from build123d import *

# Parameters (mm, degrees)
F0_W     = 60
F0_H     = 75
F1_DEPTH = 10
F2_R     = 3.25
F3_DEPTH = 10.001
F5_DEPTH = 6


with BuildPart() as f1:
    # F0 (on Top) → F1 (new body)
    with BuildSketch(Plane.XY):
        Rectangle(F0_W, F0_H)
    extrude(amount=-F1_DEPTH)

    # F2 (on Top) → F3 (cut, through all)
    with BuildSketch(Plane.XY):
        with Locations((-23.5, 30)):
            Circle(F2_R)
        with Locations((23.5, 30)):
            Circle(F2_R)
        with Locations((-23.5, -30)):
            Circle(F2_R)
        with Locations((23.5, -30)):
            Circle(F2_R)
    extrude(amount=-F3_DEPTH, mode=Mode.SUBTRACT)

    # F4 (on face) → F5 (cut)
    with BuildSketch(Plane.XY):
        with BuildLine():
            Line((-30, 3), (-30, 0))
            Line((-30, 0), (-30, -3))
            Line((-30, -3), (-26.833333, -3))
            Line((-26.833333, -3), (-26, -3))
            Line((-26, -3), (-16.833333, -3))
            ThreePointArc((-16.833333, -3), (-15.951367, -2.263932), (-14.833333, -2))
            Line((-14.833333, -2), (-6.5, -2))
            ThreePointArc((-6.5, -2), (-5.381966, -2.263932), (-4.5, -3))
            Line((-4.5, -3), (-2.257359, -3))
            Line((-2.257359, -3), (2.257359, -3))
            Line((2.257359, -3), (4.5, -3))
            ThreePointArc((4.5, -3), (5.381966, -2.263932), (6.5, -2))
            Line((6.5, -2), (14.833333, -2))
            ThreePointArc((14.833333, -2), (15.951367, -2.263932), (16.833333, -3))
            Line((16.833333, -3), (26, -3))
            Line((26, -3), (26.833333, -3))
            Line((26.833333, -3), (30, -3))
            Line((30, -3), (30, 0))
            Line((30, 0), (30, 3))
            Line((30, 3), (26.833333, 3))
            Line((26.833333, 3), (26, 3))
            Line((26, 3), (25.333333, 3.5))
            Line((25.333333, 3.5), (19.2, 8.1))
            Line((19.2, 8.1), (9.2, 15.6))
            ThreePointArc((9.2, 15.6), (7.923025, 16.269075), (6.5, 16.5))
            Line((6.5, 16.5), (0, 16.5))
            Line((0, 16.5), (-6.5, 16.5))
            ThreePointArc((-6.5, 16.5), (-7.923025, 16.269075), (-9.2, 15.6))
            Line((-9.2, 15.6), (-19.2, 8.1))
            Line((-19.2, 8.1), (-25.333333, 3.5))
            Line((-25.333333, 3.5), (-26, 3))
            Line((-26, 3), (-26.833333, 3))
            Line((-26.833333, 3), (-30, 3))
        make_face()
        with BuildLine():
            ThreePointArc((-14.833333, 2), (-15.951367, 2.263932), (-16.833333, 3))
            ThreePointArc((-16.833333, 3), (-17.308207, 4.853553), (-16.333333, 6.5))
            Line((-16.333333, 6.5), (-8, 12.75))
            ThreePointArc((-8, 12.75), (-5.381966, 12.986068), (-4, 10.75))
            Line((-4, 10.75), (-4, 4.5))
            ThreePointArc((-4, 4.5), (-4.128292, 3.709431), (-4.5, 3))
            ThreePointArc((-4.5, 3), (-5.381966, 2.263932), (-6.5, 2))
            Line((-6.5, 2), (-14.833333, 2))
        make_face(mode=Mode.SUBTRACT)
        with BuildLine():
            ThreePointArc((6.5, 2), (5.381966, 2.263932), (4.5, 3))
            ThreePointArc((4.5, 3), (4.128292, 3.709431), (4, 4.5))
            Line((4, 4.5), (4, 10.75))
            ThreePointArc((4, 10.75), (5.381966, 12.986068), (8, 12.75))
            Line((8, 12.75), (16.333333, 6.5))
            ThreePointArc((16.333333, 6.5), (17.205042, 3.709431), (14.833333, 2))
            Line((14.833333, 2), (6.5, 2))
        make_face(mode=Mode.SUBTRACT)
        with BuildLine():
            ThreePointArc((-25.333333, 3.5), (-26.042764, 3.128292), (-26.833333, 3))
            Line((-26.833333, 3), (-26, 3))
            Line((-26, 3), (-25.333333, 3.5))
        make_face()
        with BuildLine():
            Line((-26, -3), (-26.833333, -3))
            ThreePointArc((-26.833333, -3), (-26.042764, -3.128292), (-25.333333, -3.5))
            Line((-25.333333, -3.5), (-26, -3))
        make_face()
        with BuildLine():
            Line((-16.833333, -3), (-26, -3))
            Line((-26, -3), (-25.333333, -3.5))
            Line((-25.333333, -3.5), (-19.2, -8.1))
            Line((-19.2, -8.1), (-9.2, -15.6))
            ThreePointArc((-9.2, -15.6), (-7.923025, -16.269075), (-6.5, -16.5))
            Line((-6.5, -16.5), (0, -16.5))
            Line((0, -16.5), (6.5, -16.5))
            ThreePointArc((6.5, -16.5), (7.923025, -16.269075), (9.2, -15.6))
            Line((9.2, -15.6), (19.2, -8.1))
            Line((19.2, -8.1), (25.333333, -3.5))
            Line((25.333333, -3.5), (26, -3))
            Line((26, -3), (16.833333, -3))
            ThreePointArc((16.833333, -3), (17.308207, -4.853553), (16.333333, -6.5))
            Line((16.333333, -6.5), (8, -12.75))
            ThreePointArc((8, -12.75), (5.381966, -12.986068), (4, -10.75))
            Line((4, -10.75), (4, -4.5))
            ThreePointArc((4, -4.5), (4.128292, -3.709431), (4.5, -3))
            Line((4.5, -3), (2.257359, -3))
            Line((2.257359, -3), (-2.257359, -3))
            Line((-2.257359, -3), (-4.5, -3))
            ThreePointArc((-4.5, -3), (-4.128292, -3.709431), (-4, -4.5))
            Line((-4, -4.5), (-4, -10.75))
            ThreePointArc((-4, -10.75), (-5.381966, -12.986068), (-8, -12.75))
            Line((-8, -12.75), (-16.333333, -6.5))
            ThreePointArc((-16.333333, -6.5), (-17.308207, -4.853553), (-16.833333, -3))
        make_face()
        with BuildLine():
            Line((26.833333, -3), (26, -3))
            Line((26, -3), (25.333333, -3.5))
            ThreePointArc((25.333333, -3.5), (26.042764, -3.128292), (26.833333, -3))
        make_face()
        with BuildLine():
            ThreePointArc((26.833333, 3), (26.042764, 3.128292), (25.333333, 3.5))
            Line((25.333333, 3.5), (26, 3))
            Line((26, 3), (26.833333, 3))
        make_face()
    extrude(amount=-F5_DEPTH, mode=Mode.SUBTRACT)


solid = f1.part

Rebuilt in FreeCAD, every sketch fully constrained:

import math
import FreeCAD as App
import Part
import Sketcher
from FreeCAD import Vector

doc = App.newDocument("Part")
body = doc.addObject("PartDesign::Body", "Body")

sketch1 = body.newObject("Sketcher::SketchObject", "Sketch")
sketch1.AttachmentSupport = (doc.getObject("XY_Plane"), [""])
sketch1.MapMode = "FlatFace"
sketch1.addGeometry(Part.LineSegment(Vector(-30, 38, 0), Vector(-30, -38, 0)), False)
sketch1.addGeometry(Part.LineSegment(Vector(-30, -38, 0), Vector(30, -38, 0)), False)
sketch1.addGeometry(Part.LineSegment(Vector(30, -38, 0), Vector(30, 38, 0)), False)
sketch1.addGeometry(Part.LineSegment(Vector(30, 38, 0), Vector(-30, 38, 0)), False)
sketch1.addConstraint(Sketcher.Constraint("Coincident", 0, 2, 1, 1))
sketch1.addConstraint(Sketcher.Constraint("Coincident", 1, 2, 2, 1))
sketch1.addConstraint(Sketcher.Constraint("Coincident", 2, 2, 3, 1))
sketch1.addConstraint(Sketcher.Constraint("Coincident", 3, 2, 0, 1))
sketch1.addConstraint(Sketcher.Constraint("Vertical", 0))
sketch1.addConstraint(Sketcher.Constraint("Horizontal", 1))
sketch1.addConstraint(Sketcher.Constraint("Vertical", 2))
sketch1.addConstraint(Sketcher.Constraint("Horizontal", 3))
sketch1.addConstraint(Sketcher.Constraint("Symmetric", 0, 2, 2, 2, -1, 1))
sketch1.addConstraint(Sketcher.Constraint("DistanceX", 1, 1, 1, 2, 60.0))
sketch1.addConstraint(Sketcher.Constraint("DistanceY", 0, 2, 0, 1, 75.0))
pad1 = body.newObject("PartDesign::Pad", "Pad")
pad1.Profile = sketch1
pad1.Length = 10
pad1.Reversed = True

sketch2 = body.newObject("Sketcher::SketchObject", "Sketch001")
sketch2.AttachmentSupport = (doc.getObject("XY_Plane"), [""])
sketch2.MapMode = "FlatFace"
sketch2.addGeometry(Part.Circle(Vector(-23.5, 30, 0), Vector(0, 0, 1), 3.2), False)
sketch2.addGeometry(Part.Circle(Vector(23.5, 30, 0), Vector(0, 0, 1), 3.2), False)
sketch2.addGeometry(Part.Circle(Vector(-23.5, -30, 0), Vector(0, 0, 1), 3.2), False)
sketch2.addGeometry(Part.Circle(Vector(23.5, -30, 0), Vector(0, 0, 1), 3.2), False)
sketch2.addConstraint(Sketcher.Constraint("Equal", 0, 1))
sketch2.addConstraint(Sketcher.Constraint("Equal", 1, 2))
sketch2.addConstraint(Sketcher.Constraint("Equal", 2, 3))
sketch2.addConstraint(Sketcher.Constraint("Symmetric", 1, 3, 2, 3, -1, 1))
sketch2.addConstraint(Sketcher.Constraint("Symmetric", 0, 3, 3, 3, -1, 1))
sketch2.addConstraint(Sketcher.Constraint("Symmetric", 0, 3, 1, 3, -2))
sketch2.addConstraint(Sketcher.Constraint("Diameter", 0, 6.5))
sketch2.addConstraint(Sketcher.Constraint("DistanceY", -1, 1, 0, 3, 30.0))
sketch2.addConstraint(Sketcher.Constraint("DistanceX", 0, 3, 1, 3, 47.0))
pocket1 = body.newObject("PartDesign::Pocket", "Pocket")
pocket1.Profile = sketch2
pocket1.Type = "ThroughAll"

sketch3 = body.newObject("Sketcher::SketchObject", "Sketch002")
sketch3.AttachmentSupport = (doc.getObject("XY_Plane"), [""])
sketch3.MapMode = "FlatFace"
sketch3.addGeometry(Part.LineSegment(Vector(-30, 3, 0), Vector(-30, -3, 0)), False)
sketch3.addGeometry(Part.LineSegment(Vector(-30, -3, 0), Vector(-26.8, -3, 0)), False)
sketch3.addGeometry(Part.ArcOfCircle(Part.Circle(Vector(-26.8, -5.5, 0), Vector(0, 0, 1), 2.5), math.radians(53), math.radians(90)), False)
sketch3.addGeometry(Part.LineSegment(Vector(-25.3, -3.5, 0), Vector(-19.2, -8.1, 0)), False)
sketch3.addGeometry(Part.LineSegment(Vector(-19.2, -8.1, 0), Vector(-9.2, -15.6, 0)), False)
sketch3.addGeometry(Part.ArcOfCircle(Part.Circle(Vector(-6.5, -12, 0), Vector(0, 0, 1), 4.5), math.radians(-127), math.radians(-90)), False)
sketch3.addGeometry(Part.LineSegment(Vector(-6.5, -16.5, 0), Vector(6.5, -16.5, 0)), False)
sketch3.addGeometry(Part.ArcOfCircle(Part.Circle(Vector(6.5, -12, 0), Vector(0, 0, 1), 4.5), math.radians(-90), math.radians(-53)), False)
sketch3.addGeometry(Part.LineSegment(Vector(9.2, -15.6, 0), Vector(19.2, -8.1, 0)), False)
sketch3.addGeometry(Part.LineSegment(Vector(19.2, -8.1, 0), Vector(25.3, -3.5, 0)), False)
sketch3.addGeometry(Part.ArcOfCircle(Part.Circle(Vector(26.8, -5.5, 0), Vector(0, 0, 1), 2.5), math.radians(90), math.radians(127)), False)
sketch3.addGeometry(Part.LineSegment(Vector(26.8, -3, 0), Vector(30, -3, 0)), False)
sketch3.addGeometry(Part.LineSegment(Vector(30, -3, 0), Vector(30, 3, 0)), False)
sketch3.addGeometry(Part.LineSegment(Vector(30, 3, 0), Vector(26.8, 3, 0)), False)
sketch3.addGeometry(Part.ArcOfCircle(Part.Circle(Vector(26.8, 5.5, 0), Vector(0, 0, 1), 2.5), math.radians(-127), math.radians(-90)), False)
sketch3.addGeometry(Part.LineSegment(Vector(25.3, 3.5, 0), Vector(19.2, 8.1, 0)), False)
sketch3.addGeometry(Part.LineSegment(Vector(19.2, 8.1, 0), Vector(9.2, 15.6, 0)), False)
sketch3.addGeometry(Part.ArcOfCircle(Part.Circle(Vector(6.5, 12, 0), Vector(0, 0, 1), 4.5), math.radians(53), math.radians(90)), False)
sketch3.addGeometry(Part.LineSegment(Vector(6.5, 16.5, 0), Vector(-6.5, 16.5, 0)), False)
sketch3.addGeometry(Part.ArcOfCircle(Part.Circle(Vector(-6.5, 12, 0), Vector(0, 0, 1), 4.5), math.radians(90), math.radians(127)), False)
sketch3.addGeometry(Part.LineSegment(Vector(-9.2, 15.6, 0), Vector(-19.2, 8.1, 0)), False)
sketch3.addGeometry(Part.LineSegment(Vector(-19.2, 8.1, 0), Vector(-25.3, 3.5, 0)), False)
sketch3.addGeometry(Part.ArcOfCircle(Part.Circle(Vector(-26.8, 5.5, 0), Vector(0, 0, 1), 2.5), math.radians(-90), math.radians(-53)), False)
sketch3.addGeometry(Part.LineSegment(Vector(-26.8, 3, 0), Vector(-30, 3, 0)), False)
sketch3.addGeometry(Part.ArcOfCircle(Part.Circle(Vector(-14.8, -4.5, 0), Vector(0, 0, 1), 2.5), math.radians(90), math.radians(143)), False)
sketch3.addGeometry(Part.LineSegment(Vector(-14.8, -2, 0), Vector(-6.5, -2, 0)), False)
sketch3.addGeometry(Part.ArcOfCircle(Part.Circle(Vector(-6.5, -4.5, 0), Vector(0, 0, 1), 2.5), math.radians(37), math.radians(90)), False)
sketch3.addGeometry(Part.ArcOfCircle(Part.Circle(Vector(-6.5, -4.5, 0), Vector(0, 0, 1), 2.5), math.radians(0), math.radians(37)), False)
sketch3.addGeometry(Part.LineSegment(Vector(-4, -4.5, 0), Vector(-4, -10.8, 0)), False)
sketch3.addGeometry(Part.ArcOfCircle(Part.Circle(Vector(-6.5, -10.8, 0), Vector(0, 0, 1), 2.5), math.radians(-127), math.radians(0)), False)
sketch3.addGeometry(Part.LineSegment(Vector(-8, -12.8, 0), Vector(-16.3, -6.5, 0)), False)
sketch3.addGeometry(Part.ArcOfCircle(Part.Circle(Vector(-14.8, -4.5, 0), Vector(0, 0, 1), 2.5), math.radians(143), math.radians(233)), False)
sketch3.addGeometry(Part.ArcOfCircle(Part.Circle(Vector(6.5, -4.5, 0), Vector(0, 0, 1), 2.5), math.radians(90), math.radians(143)), False)
sketch3.addGeometry(Part.LineSegment(Vector(6.5, -2, 0), Vector(14.8, -2, 0)), False)
sketch3.addGeometry(Part.ArcOfCircle(Part.Circle(Vector(14.8, -4.5, 0), Vector(0, 0, 1), 2.5), math.radians(37), math.radians(90)), False)
sketch3.addGeometry(Part.ArcOfCircle(Part.Circle(Vector(14.8, -4.5, 0), Vector(0, 0, 1), 2.5), math.radians(-53), math.radians(37)), False)
sketch3.addGeometry(Part.LineSegment(Vector(16.3, -6.5, 0), Vector(8, -12.8, 0)), False)
sketch3.addGeometry(Part.ArcOfCircle(Part.Circle(Vector(6.5, -10.8, 0), Vector(0, 0, 1), 2.5), math.radians(180), math.radians(307)), False)
sketch3.addGeometry(Part.LineSegment(Vector(4, -10.8, 0), Vector(4, -4.5, 0)), False)
sketch3.addGeometry(Part.ArcOfCircle(Part.Circle(Vector(6.5, -4.5, 0), Vector(0, 0, 1), 2.5), math.radians(143), math.radians(180)), False)
sketch3.addGeometry(Part.LineSegment(Vector(14.8, 2, 0), Vector(6.5, 2, 0)), False)
sketch3.addGeometry(Part.ArcOfCircle(Part.Circle(Vector(6.5, 4.5, 0), Vector(0, 0, 1), 2.5), math.radians(-143), math.radians(-90)), False)
sketch3.addGeometry(Part.ArcOfCircle(Part.Circle(Vector(6.5, 4.5, 0), Vector(0, 0, 1), 2.5), math.radians(-180), math.radians(-143)), False)
sketch3.addGeometry(Part.LineSegment(Vector(4, 4.5, 0), Vector(4, 10.8, 0)), False)
sketch3.addGeometry(Part.ArcOfCircle(Part.Circle(Vector(6.5, 10.8, 0), Vector(0, 0, 1), 2.5), math.radians(53), math.radians(180)), False)
sketch3.addGeometry(Part.LineSegment(Vector(8, 12.8, 0), Vector(16.3, 6.5, 0)), False)
sketch3.addGeometry(Part.ArcOfCircle(Part.Circle(Vector(14.8, 4.5, 0), Vector(0, 0, 1), 2.5), math.radians(-90), math.radians(53)), False)
sketch3.addGeometry(Part.LineSegment(Vector(-6.5, 2, 0), Vector(-14.8, 2, 0)), False)
sketch3.addGeometry(Part.ArcOfCircle(Part.Circle(Vector(-14.8, 4.5, 0), Vector(0, 0, 1), 2.5), math.radians(-143), math.radians(-90)), False)
sketch3.addGeometry(Part.ArcOfCircle(Part.Circle(Vector(-14.8, 4.5, 0), Vector(0, 0, 1), 2.5), math.radians(127), math.radians(217)), False)
sketch3.addGeometry(Part.LineSegment(Vector(-16.3, 6.5, 0), Vector(-8, 12.8, 0)), False)
sketch3.addGeometry(Part.ArcOfCircle(Part.Circle(Vector(-6.5, 10.8, 0), Vector(0, 0, 1), 2.5), math.radians(0), math.radians(127)), False)
sketch3.addGeometry(Part.LineSegment(Vector(-4, 10.8, 0), Vector(-4, 4.5, 0)), False)
sketch3.addGeometry(Part.ArcOfCircle(Part.Circle(Vector(-6.5, 4.5, 0), Vector(0, 0, 1), 2.5), math.radians(-37), math.radians(0)), False)
sketch3.addGeometry(Part.ArcOfCircle(Part.Circle(Vector(-6.5, 4.5, 0), Vector(0, 0, 1), 2.5), math.radians(-90), math.radians(-37)), False)
sketch3.addConstraint(Sketcher.Constraint("Coincident", 0, 2, 1, 1))
sketch3.addConstraint(Sketcher.Constraint("Tangent", 1, 2, 2, 2))
sketch3.addConstraint(Sketcher.Constraint("Tangent", 2, 1, 3, 1))
sketch3.addConstraint(Sketcher.Constraint("Coincident", 3, 2, 4, 1))
sketch3.addConstraint(Sketcher.Constraint("Tangent", 4, 2, 5, 1))
sketch3.addConstraint(Sketcher.Constraint("Tangent", 5, 2, 6, 1))
sketch3.addConstraint(Sketcher.Constraint("Tangent", 6, 2, 7, 1))
sketch3.addConstraint(Sketcher.Constraint("Tangent", 7, 2, 8, 1))
sketch3.addConstraint(Sketcher.Constraint("Coincident", 8, 2, 9, 1))
sketch3.addConstraint(Sketcher.Constraint("Tangent", 9, 2, 10, 2))
sketch3.addConstraint(Sketcher.Constraint("Tangent", 10, 1, 11, 1))
sketch3.addConstraint(Sketcher.Constraint("Coincident", 11, 2, 12, 1))
sketch3.addConstraint(Sketcher.Constraint("Coincident", 12, 2, 13, 1))
sketch3.addConstraint(Sketcher.Constraint("Tangent", 13, 2, 14, 2))
sketch3.addConstraint(Sketcher.Constraint("Tangent", 14, 1, 15, 1))
sketch3.addConstraint(Sketcher.Constraint("Coincident", 15, 2, 16, 1))
sketch3.addConstraint(Sketcher.Constraint("Tangent", 16, 2, 17, 1))
sketch3.addConstraint(Sketcher.Constraint("Tangent", 17, 2, 18, 1))
sketch3.addConstraint(Sketcher.Constraint("Tangent", 18, 2, 19, 1))
sketch3.addConstraint(Sketcher.Constraint("Tangent", 19, 2, 20, 1))
sketch3.addConstraint(Sketcher.Constraint("Coincident", 20, 2, 21, 1))
sketch3.addConstraint(Sketcher.Constraint("Tangent", 21, 2, 22, 2))
sketch3.addConstraint(Sketcher.Constraint("Tangent", 22, 1, 23, 1))
sketch3.addConstraint(Sketcher.Constraint("Coincident", 23, 2, 0, 1))
sketch3.addConstraint(Sketcher.Constraint("Tangent", 24, 1, 25, 1))
sketch3.addConstraint(Sketcher.Constraint("Tangent", 25, 2, 26, 2))
sketch3.addConstraint(Sketcher.Constraint("Tangent", 26, 1, 27, 2))
sketch3.addConstraint(Sketcher.Constraint("Tangent", 27, 1, 28, 1))
sketch3.addConstraint(Sketcher.Constraint("Tangent", 28, 2, 29, 2))
sketch3.addConstraint(Sketcher.Constraint("Tangent", 29, 1, 30, 1))
sketch3.addConstraint(Sketcher.Constraint("Tangent", 30, 2, 31, 2))
sketch3.addConstraint(Sketcher.Constraint("Tangent", 31, 1, 24, 2))
sketch3.addConstraint(Sketcher.Constraint("Tangent", 32, 1, 33, 1))
sketch3.addConstraint(Sketcher.Constraint("Tangent", 33, 2, 34, 2))
sketch3.addConstraint(Sketcher.Constraint("Tangent", 34, 1, 35, 2))
sketch3.addConstraint(Sketcher.Constraint("Tangent", 35, 1, 36, 1))
sketch3.addConstraint(Sketcher.Constraint("Tangent", 36, 2, 37, 2))
sketch3.addConstraint(Sketcher.Constraint("Tangent", 37, 1, 38, 1))
sketch3.addConstraint(Sketcher.Constraint("Tangent", 38, 2, 39, 2))
sketch3.addConstraint(Sketcher.Constraint("Tangent", 39, 1, 32, 2))
sketch3.addConstraint(Sketcher.Constraint("Tangent", 40, 2, 41, 2))
sketch3.addConstraint(Sketcher.Constraint("Tangent", 41, 1, 42, 2))
sketch3.addConstraint(Sketcher.Constraint("Tangent", 42, 1, 43, 1))
sketch3.addConstraint(Sketcher.Constraint("Tangent", 43, 2, 44, 2))
sketch3.addConstraint(Sketcher.Constraint("Tangent", 44, 1, 45, 1))
sketch3.addConstraint(Sketcher.Constraint("Tangent", 45, 2, 46, 2))
sketch3.addConstraint(Sketcher.Constraint("Tangent", 46, 1, 40, 1))
sketch3.addConstraint(Sketcher.Constraint("Tangent", 47, 2, 48, 2))
sketch3.addConstraint(Sketcher.Constraint("Tangent", 48, 1, 49, 2))
sketch3.addConstraint(Sketcher.Constraint("Tangent", 49, 1, 50, 1))
sketch3.addConstraint(Sketcher.Constraint("Tangent", 50, 2, 51, 2))
sketch3.addConstraint(Sketcher.Constraint("Tangent", 51, 1, 52, 1))
sketch3.addConstraint(Sketcher.Constraint("Tangent", 52, 2, 53, 2))
sketch3.addConstraint(Sketcher.Constraint("Tangent", 53, 1, 54, 2))
sketch3.addConstraint(Sketcher.Constraint("Tangent", 54, 1, 47, 1))
sketch3.addConstraint(Sketcher.Constraint("Vertical", 0))
sketch3.addConstraint(Sketcher.Constraint("Horizontal", 1))
sketch3.addConstraint(Sketcher.Constraint("Horizontal", 6))
sketch3.addConstraint(Sketcher.Constraint("Horizontal", 11))
sketch3.addConstraint(Sketcher.Constraint("Vertical", 12))
sketch3.addConstraint(Sketcher.Constraint("Horizontal", 13))
sketch3.addConstraint(Sketcher.Constraint("Horizontal", 18))
sketch3.addConstraint(Sketcher.Constraint("Horizontal", 23))
sketch3.addConstraint(Sketcher.Constraint("Horizontal", 25))
sketch3.addConstraint(Sketcher.Constraint("Vertical", 28))
sketch3.addConstraint(Sketcher.Constraint("Horizontal", 33))
sketch3.addConstraint(Sketcher.Constraint("Vertical", 38))
sketch3.addConstraint(Sketcher.Constraint("Horizontal", 40))
sketch3.addConstraint(Sketcher.Constraint("Vertical", 43))
sketch3.addConstraint(Sketcher.Constraint("Horizontal", 47))
sketch3.addConstraint(Sketcher.Constraint("Vertical", 52))
sketch3.addConstraint(Sketcher.Constraint("Equal", 5, 7))
sketch3.addConstraint(Sketcher.Constraint("Equal", 2, 10))
sketch3.addConstraint(Sketcher.Constraint("Equal", 10, 14))
sketch3.addConstraint(Sketcher.Constraint("Equal", 7, 17))
sketch3.addConstraint(Sketcher.Constraint("Equal", 17, 19))
sketch3.addConstraint(Sketcher.Constraint("Equal", 14, 22))
sketch3.addConstraint(Sketcher.Constraint("Equal", 24, 26))
sketch3.addConstraint(Sketcher.Constraint("Equal", 22, 27))
sketch3.addConstraint(Sketcher.Constraint("Equal", 26, 29))
sketch3.addConstraint(Sketcher.Constraint("Equal", 29, 31))
sketch3.addConstraint(Sketcher.Constraint("Equal", 31, 32))
sketch3.addConstraint(Sketcher.Constraint("Equal", 32, 34))
sketch3.addConstraint(Sketcher.Constraint("Equal", 34, 35))
sketch3.addConstraint(Sketcher.Constraint("Equal", 35, 37))
sketch3.addConstraint(Sketcher.Constraint("Equal", 27, 39))
sketch3.addConstraint(Sketcher.Constraint("Equal", 37, 41))
sketch3.addConstraint(Sketcher.Constraint("Equal", 39, 42))
sketch3.addConstraint(Sketcher.Constraint("Equal", 41, 44))
sketch3.addConstraint(Sketcher.Constraint("Equal", 44, 46))
sketch3.addConstraint(Sketcher.Constraint("Equal", 46, 48))
sketch3.addConstraint(Sketcher.Constraint("Equal", 48, 49))
sketch3.addConstraint(Sketcher.Constraint("Equal", 49, 51))
sketch3.addConstraint(Sketcher.Constraint("Equal", 42, 53))
sketch3.addConstraint(Sketcher.Constraint("Equal", 51, 54))
sketch3.addConstraint(Sketcher.Constraint("Symmetric", 2, 3, 14, 3, -1, 1))
sketch3.addConstraint(Sketcher.Constraint("Symmetric", 5, 3, 17, 3, -1, 1))
sketch3.addConstraint(Sketcher.Constraint("Symmetric", 10, 3, 22, 3, -1, 1))
sketch3.addConstraint(Sketcher.Constraint("Symmetric", 26, 3, 41, 3, -1, 1))
sketch3.addConstraint(Sketcher.Constraint("Symmetric", 34, 3, 48, 3, -1, 1))
sketch3.addConstraint(Sketcher.Constraint("Symmetric", 37, 3, 51, 3, -1, 1))
sketch3.addConstraint(Sketcher.Constraint("Symmetric", 3, 2, 15, 2, -1, 1))
sketch3.addConstraint(Sketcher.Constraint("Symmetric", 7, 2, 19, 2, -1, 1))
sketch3.addConstraint(Sketcher.Constraint("Symmetric", 29, 1, 44, 1, -1, 1))
sketch3.addConstraint(Sketcher.Constraint("Symmetric", 2, 3, 10, 3, -2))
sketch3.addConstraint(Sketcher.Constraint("Symmetric", 26, 3, 32, 3, -2))
sketch3.addConstraint(Sketcher.Constraint("Symmetric", 4, 2, 7, 2, -2))
sketch3.addConstraint(Sketcher.Constraint("Symmetric", 31, 1, 34, 1, -2))
sketch3.addConstraint(Sketcher.Constraint("Parallel", 3, 4))
sketch3.addConstraint(Sketcher.Constraint("Parallel", 16, 30))
sketch3.addConstraint(Sketcher.Constraint("Parallel", 21, 36))
sketch3.addConstraint(Sketcher.Constraint("Horizontal", 3, 2, 8, 2))
sketch3.addConstraint(Sketcher.Constraint("Horizontal", 15, 2, 20, 2))
sketch3.addConstraint(Sketcher.Constraint("Horizontal", 11, 2, 26, 1))
sketch3.addConstraint(Sketcher.Constraint("Horizontal", 35, 3, 27, 1))
sketch3.addConstraint(Sketcher.Constraint("Horizontal", 26, 1, 31, 1))
sketch3.addConstraint(Sketcher.Constraint("Horizontal", 34, 1, 39, 1))
sketch3.addConstraint(Sketcher.Constraint("Horizontal", 23, 2, 41, 1))
sketch3.addConstraint(Sketcher.Constraint("Horizontal", 41, 1, 48, 1))
sketch3.addConstraint(Sketcher.Constraint("Horizontal", 48, 1, 53, 1))
sketch3.addConstraint(Sketcher.Constraint("Vertical", 19, 3, 26, 3))
sketch3.addConstraint(Sketcher.Constraint("Equal", 1, 11))
sketch3.addConstraint(Sketcher.Constraint("Radius", 24, 2.5))
sketch3.addConstraint(Sketcher.Constraint("DistanceX", 6, 1, 6, 2, 13.0))
sketch3.addConstraint(Sketcher.Constraint("DistanceY", 0, 2, 0, 1, 6.0))
sketch3.addConstraint(Sketcher.Constraint("DistanceX", 0, 2, -1, 1, 30.0))
sketch3.addConstraint(Sketcher.Constraint("DistanceY", 24, 1, -1, 1, 2.0))
sketch3.addConstraint(Sketcher.Constraint("DistanceX", 29, 1, -1, 1, 8.0))
sketch3.addConstraint(Sketcher.Constraint("Distance", 4, 12.5))
sketch3.addConstraint(Sketcher.Constraint("DistanceY", 28, 2, 28, 1, 6.25))
sketch3.addConstraint(Sketcher.Constraint("DistanceX", 3, 2, -1, 1, 19.2))
sketch3.addConstraint(Sketcher.Constraint("DistanceY", 3, 2, -1, 1, 8.1))
pocket2 = body.newObject("PartDesign::Pocket", "Pocket001")
pocket2.Profile = sketch3
pocket2.Length = 6

doc.recompute()
